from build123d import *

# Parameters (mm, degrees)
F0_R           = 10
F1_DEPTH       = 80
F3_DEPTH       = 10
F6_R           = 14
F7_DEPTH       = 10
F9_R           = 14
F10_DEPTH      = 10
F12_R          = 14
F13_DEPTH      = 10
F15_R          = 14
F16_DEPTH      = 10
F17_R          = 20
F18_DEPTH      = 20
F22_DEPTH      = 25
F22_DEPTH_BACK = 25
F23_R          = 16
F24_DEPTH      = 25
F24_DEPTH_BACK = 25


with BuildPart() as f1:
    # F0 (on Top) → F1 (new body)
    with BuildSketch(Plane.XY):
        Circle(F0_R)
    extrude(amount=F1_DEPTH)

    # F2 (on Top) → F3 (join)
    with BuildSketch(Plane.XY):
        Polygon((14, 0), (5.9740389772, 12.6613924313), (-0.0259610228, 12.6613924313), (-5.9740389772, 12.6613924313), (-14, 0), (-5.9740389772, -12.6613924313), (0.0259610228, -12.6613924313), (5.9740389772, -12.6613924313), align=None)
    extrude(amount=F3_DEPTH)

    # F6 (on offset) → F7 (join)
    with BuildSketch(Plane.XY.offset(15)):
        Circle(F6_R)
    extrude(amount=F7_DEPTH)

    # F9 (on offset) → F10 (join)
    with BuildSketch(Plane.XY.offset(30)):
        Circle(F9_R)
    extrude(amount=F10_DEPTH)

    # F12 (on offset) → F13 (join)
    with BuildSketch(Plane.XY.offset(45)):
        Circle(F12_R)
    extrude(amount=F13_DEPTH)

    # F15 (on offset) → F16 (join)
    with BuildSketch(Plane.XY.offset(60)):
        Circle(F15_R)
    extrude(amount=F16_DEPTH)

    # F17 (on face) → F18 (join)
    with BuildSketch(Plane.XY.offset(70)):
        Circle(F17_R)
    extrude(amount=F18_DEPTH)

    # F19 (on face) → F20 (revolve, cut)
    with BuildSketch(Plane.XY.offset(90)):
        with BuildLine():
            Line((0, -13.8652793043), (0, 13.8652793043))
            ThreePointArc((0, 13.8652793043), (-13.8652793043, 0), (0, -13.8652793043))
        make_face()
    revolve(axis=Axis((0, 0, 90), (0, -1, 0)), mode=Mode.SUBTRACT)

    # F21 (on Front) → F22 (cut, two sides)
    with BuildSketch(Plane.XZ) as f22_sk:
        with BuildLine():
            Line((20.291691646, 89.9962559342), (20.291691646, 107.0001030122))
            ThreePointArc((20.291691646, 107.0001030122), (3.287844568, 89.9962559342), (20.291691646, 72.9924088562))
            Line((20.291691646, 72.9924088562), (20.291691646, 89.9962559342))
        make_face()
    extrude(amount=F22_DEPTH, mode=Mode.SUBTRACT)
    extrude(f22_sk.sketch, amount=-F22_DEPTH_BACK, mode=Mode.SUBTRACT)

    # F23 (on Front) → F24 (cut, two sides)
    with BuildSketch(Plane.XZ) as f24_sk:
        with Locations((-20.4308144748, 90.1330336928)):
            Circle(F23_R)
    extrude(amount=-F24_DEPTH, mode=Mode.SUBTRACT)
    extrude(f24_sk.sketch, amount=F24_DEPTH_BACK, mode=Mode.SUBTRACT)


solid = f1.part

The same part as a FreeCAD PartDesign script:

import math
import FreeCAD as App
import Part
import Sketcher
Q = App.Units.Quantity


def add_polygon(sketch, points):
    """Adds a closed chain of lines whose ends are joined by coincident constraints."""
    first, n = sketch.GeometryCount, len(points)
    for a, b in zip(points, points[1:] + points[:1]):
        sketch.addGeometry(Part.LineSegment(App.Vector(*a, 0), App.Vector(*b, 0)), False)
    for i in range(n):
        sketch.addConstraint(Sketcher.Constraint("Coincident", first + i, 2, first + (i + 1) % n, 1))

doc = App.newDocument("Part")
body = doc.addObject("PartDesign::Body", "Body")

sketch1 = body.newObject("Sketcher::SketchObject", "Sketch")
sketch1.AttachmentSupport = (doc.getObject("XY_Plane"), [""])
sketch1.MapMode = "FlatFace"
sketch1.addGeometry(Part.Circle(App.Vector(0, 0, 0), App.Vector(0, 0, 1), 10), False)
sketch1.addConstraint(Sketcher.Constraint("Coincident", 0, 3, -1, 1))
sketch1.addConstraint(Sketcher.Constraint("Diameter", 0, Q("20 mm")))
pad1 = body.newObject("PartDesign::Pad", "Pad")
pad1.Profile = sketch1
pad1.Length = 80

sketch2 = body.newObject("Sketcher::SketchObject", "Sketch001")
sketch2.AttachmentSupport = (doc.getObject("XY_Plane"), [""])
sketch2.MapMode = "FlatFace"
add_polygon(sketch2, [(14, 0), (6, 13), (-6, 13), (-14, 0), (-6, -13), (6, -13)])
sketch2.addConstraint(Sketcher.Constraint("Horizontal", 1))
sketch2.addConstraint(Sketcher.Constraint("Horizontal", 4))
sketch2.addConstraint(Sketcher.Constraint("Symmetric", 0, 2, 3, 2, -1, 1))
sketch2.addConstraint(Sketcher.Constraint("Symmetric", 2, 2, 5, 2, -1, 1))
sketch2.addConstraint(Sketcher.Constraint("PointOnObject", 2, 2, -1))
sketch2.addConstraint(Sketcher.Constraint("Parallel", 2, 5))
sketch2.addConstraint(Sketcher.Constraint("Vertical", 1, 2, 3, 2))
sketch2.addConstraint(Sketcher.Constraint("DistanceX", 2, 2, -1, 1, Q("14 mm")))
sketch2.addConstraint(Sketcher.Constraint("DistanceX", 1, 2, 1, 1, Q("11.948078 mm")))
sketch2.addConstraint(Sketcher.Constraint("Distance", 0, Q("14.990894 mm")))
pad2 = body.newObject("PartDesign::Pad", "Pad001")
pad2.Profile = sketch2
pad2.Length = 10

sketch3 = body.newObject("Sketcher::SketchObject", "Sketch002")
sketch3.AttachmentSupport = (doc.getObject("XY_Plane"), [""])
sketch3.MapMode = "FlatFace"
sketch3.AttachmentOffset = App.Placement(App.Vector(0, 0, 15), App.Rotation())
sketch3.addGeometry(Part.Circle(App.Vector(0, 0, 0), App.Vector(0, 0, 1), 14), False)
sketch3.addConstraint(Sketcher.Constraint("Coincident", 0, 3, -1, 1))
sketch3.addConstraint(Sketcher.Constraint("Diameter", 0, Q("28 mm")))
pad3 = body.newObject("PartDesign::Pad", "Pad002")
pad3.Profile = sketch3
pad3.Length = 10

sketch4 = body.newObject("Sketcher::SketchObject", "Sketch003")
sketch4.AttachmentSupport = (doc.getObject("XY_Plane"), [""])
sketch4.MapMode = "FlatFace"
sketch4.AttachmentOffset = App.Placement(App.Vector(0, 0, 30), App.Rotation())
sketch4.addGeometry(Part.Circle(App.Vector(0, 0, 0), App.Vector(0, 0, 1), 14), False)
sketch4.addConstraint(Sketcher.Constraint("Coincident", 0, 3, -1, 1))
sketch4.addConstraint(Sketcher.Constraint("Diameter", 0, Q("28 mm")))
pad4 = body.newObject("PartDesign::Pad", "Pad003")
pad4.Profile = sketch4
pad4.Length = 10

sketch5 = body.newObject("Sketcher::SketchObject", "Sketch004")
sketch5.AttachmentSupport = (doc.getObject("XY_Plane"), [""])
sketch5.MapMode = "FlatFace"
sketch5.AttachmentOffset = App.Placement(App.Vector(0, 0, 45), App.Rotation())
sketch5.addGeometry(Part.Circle(App.Vector(0, 0, 0), App.Vector(0, 0, 1), 14), False)
sketch5.addConstraint(Sketcher.Constraint("Coincident", 0, 3, -1, 1))
sketch5.addConstraint(Sketcher.Constraint("Diameter", 0, Q("28 mm")))
pad5 = body.newObject("PartDesign::Pad", "Pad004")
pad5.Profile = sketch5
pad5.Length = 10

sketch6 = body.newObject("Sketcher::SketchObject", "Sketch005")
sketch6.AttachmentSupport = (doc.getObject("XY_Plane"), [""])
sketch6.MapMode = "FlatFace"
sketch6.AttachmentOffset = App.Placement(App.Vector(0, 0, 60), App.Rotation())
sketch6.addGeometry(Part.Circle(App.Vector(0, 0, 0), App.Vector(0, 0, 1), 14), False)
sketch6.addConstraint(Sketcher.Constraint("Coincident", 0, 3, -1, 1))
sketch6.addConstraint(Sketcher.Constraint("Diameter", 0, Q("28 mm")))
pad6 = body.newObject("PartDesign::Pad", "Pad005")
pad6.Profile = sketch6
pad6.Length = 10

sketch7 = body.newObject("Sketcher::SketchObject", "Sketch006")
sketch7.AttachmentSupport = (doc.getObject("XY_Plane"), [""])
sketch7.MapMode = "FlatFace"
sketch7.AttachmentOffset = App.Placement(App.Vector(0, 0, 70), App.Rotation())
sketch7.addGeometry(Part.Circle(App.Vector(0, 0, 0), App.Vector(0, 0, 1), 20), False)
sketch7.addConstraint(Sketcher.Constraint("Coincident", 0, 3, -1, 1))
sketch7.addConstraint(Sketcher.Constraint("Diameter", 0, Q("40 mm")))
pad7 = body.newObject("PartDesign::Pad", "Pad006")
pad7.Profile = sketch7
pad7.Length = 20

sketch8 = body.newObject("Sketcher::SketchObject", "Sketch007")
sketch8.AttachmentSupport = (doc.getObject("XY_Plane"), [""])
sketch8.MapMode = "FlatFace"
sketch8.AttachmentOffset = App.Placement(App.Vector(0, 0, 90), App.Rotation())
sketch8.addGeometry(Part.LineSegment(App.Vector(0, -14, 0), App.Vector(0, 14, 0)), False)
sketch8.addGeometry(Part.ArcOfCircle(Part.Circle(App.Vector(0, 0, 0), App.Vector(0, 0, 1), 14), math.radians(90), math.radians(270)), False)
sketch8.addConstraint(Sketcher.Constraint("Coincident", 0, 1, 1, 2))
sketch8.addConstraint(Sketcher.Constraint("Coincident", 1, 1, 0, 2))
sketch8.addConstraint(Sketcher.Constraint("Vertical", 0))
sketch8.addConstraint(Sketcher.Constraint("Coincident", 1, 3, -1, 1))
sketch8.addConstraint(Sketcher.Constraint("PointOnObject", 0, 1, -2))
sketch8.addConstraint(Sketcher.Constraint("Radius", 1, Q("13.865279 mm")))
groove = body.newObject("PartDesign::Groove", "Groove")
groove.Profile = sketch8
groove.ReferenceAxis = (sketch8, ["V_Axis"])
groove.Angle = 360

sketch9 = body.newObject("Sketcher::SketchObject", "Sketch008")
sketch9.AttachmentSupport = (doc.getObject("XZ_Plane"), [""])
sketch9.MapMode = "FlatFace"
sketch9.addGeometry(Part.ArcOfCircle(Part.Circle(App.Vector(20, 90, 0), App.Vector(0, 0, 1), 17), math.radians(90), math.radians(270)), False)
sketch9.addGeometry(Part.LineSegment(App.Vector(20, 73, 0), App.Vector(20, 107, 0)), False)
sketch9.addConstraint(Sketcher.Constraint("Coincident", 0, 1, 1, 2))
sketch9.addConstraint(Sketcher.Constraint("Coincident", 1, 1, 0, 2))
sketch9.addConstraint(Sketcher.Constraint("Vertical", 1))
sketch9.addConstraint(Sketcher.Constraint("Radius", 0, Q("17.003847 mm")))
sketch9.addConstraint(Sketcher.Constraint("DistanceX", -1, 1, 0, 3, Q("20.291692 mm")))
sketch9.addConstraint(Sketcher.Constraint("DistanceX", -1, 1, 0, 1, Q("20.291692 mm")))
sketch9.addConstraint(Sketcher.Constraint("DistanceY", -1, 1, 1, 1, Q("72.992409 mm")))
pocket1 = body.newObject("PartDesign::Pocket", "Pocket")
pocket1.Profile = sketch9
pocket1.Type = "ThroughAll"
pocket1.Midplane = True

sketch10 = body.newObject("Sketcher::SketchObject", "Sketch009")
sketch10.AttachmentSupport = (doc.getObject("XZ_Plane"), [""])
sketch10.MapMode = "FlatFace"
sketch10.addGeometry(Part.Circle(App.Vector(-20, 90, 0), App.Vector(0, 0, 1), 16), False)
sketch10.addConstraint(Sketcher.Constraint("Diameter", 0, Q("32 mm")))
sketch10.addConstraint(Sketcher.Constraint("DistanceX", 0, 3, -1, 1, Q("20.430814 mm")))
sketch10.addConstraint(Sketcher.Constraint("DistanceY", -1, 1, 0, 3, Q("90.133034 mm")))
pocket2 = body.newObject("PartDesign::Pocket", "Pocket001")
pocket2.Profile = sketch10
pocket2.Type = "ThroughAll"
pocket2.Midplane = True

doc.recompute()
